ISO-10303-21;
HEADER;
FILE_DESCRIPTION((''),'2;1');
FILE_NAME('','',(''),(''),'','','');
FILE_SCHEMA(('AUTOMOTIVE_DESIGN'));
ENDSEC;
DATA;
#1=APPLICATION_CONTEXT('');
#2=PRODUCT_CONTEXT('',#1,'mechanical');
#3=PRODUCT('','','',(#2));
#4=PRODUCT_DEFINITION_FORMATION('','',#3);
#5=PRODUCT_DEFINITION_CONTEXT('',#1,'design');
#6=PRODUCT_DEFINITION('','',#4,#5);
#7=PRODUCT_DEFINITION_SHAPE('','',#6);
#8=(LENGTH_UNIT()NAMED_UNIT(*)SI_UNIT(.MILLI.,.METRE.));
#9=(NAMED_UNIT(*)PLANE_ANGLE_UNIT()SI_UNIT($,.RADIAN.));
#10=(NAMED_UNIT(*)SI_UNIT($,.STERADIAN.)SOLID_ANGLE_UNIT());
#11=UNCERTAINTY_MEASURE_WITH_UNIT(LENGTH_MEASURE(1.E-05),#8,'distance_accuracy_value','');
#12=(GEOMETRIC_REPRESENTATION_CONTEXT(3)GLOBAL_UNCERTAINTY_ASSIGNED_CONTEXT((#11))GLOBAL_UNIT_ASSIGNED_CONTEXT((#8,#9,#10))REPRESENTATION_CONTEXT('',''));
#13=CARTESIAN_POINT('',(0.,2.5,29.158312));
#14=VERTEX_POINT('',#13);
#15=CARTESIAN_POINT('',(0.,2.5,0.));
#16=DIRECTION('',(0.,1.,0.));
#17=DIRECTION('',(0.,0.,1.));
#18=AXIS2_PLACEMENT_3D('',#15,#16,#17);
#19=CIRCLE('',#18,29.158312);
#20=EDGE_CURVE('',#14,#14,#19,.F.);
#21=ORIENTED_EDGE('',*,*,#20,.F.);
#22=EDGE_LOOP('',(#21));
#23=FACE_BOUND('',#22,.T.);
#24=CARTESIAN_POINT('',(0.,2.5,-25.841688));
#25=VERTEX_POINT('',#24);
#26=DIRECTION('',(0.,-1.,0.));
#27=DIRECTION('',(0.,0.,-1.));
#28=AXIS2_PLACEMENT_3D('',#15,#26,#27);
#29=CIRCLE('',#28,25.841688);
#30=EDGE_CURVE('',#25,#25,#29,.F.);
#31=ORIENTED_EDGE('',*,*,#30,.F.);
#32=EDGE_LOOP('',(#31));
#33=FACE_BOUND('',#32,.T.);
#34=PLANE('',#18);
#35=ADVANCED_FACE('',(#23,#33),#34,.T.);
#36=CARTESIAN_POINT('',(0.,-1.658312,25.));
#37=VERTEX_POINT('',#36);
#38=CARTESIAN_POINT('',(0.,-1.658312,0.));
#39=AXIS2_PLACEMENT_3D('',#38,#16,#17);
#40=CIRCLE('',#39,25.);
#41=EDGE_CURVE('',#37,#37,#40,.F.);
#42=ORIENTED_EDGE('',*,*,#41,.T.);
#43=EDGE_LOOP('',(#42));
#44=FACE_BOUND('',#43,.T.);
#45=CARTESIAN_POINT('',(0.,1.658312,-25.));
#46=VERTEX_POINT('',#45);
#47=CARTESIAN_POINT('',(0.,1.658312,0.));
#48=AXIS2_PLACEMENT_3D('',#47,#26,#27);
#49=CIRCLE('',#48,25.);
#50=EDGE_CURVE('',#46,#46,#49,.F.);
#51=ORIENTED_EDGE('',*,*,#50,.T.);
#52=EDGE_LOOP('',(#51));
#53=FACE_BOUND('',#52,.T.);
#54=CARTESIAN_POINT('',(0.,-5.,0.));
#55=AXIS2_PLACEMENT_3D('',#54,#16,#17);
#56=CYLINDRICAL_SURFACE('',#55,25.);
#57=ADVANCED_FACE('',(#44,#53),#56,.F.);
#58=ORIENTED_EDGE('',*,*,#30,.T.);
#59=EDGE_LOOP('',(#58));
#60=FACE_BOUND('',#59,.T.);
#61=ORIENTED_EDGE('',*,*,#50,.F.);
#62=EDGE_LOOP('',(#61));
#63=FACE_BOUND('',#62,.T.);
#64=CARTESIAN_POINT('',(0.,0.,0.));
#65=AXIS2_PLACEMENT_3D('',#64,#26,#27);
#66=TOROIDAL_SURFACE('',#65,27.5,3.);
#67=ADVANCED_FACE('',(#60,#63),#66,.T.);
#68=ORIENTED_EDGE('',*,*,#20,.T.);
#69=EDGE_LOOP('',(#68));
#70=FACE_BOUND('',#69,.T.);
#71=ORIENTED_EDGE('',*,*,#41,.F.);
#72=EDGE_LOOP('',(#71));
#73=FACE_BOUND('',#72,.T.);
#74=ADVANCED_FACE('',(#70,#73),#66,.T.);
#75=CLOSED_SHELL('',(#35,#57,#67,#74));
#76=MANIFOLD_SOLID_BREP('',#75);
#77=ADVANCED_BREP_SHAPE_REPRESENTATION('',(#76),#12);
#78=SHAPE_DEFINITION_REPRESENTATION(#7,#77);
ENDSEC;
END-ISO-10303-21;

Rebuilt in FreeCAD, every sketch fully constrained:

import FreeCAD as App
import Part
import Sketcher

V = App.Vector

doc = App.newDocument("Part")
body = doc.addObject("PartDesign::Body", "Body")

sketch1 = body.newObject("Sketcher::SketchObject", "Sketch")
sketch1.AttachmentSupport = (doc.getObject("XY_Plane"), [""])
sketch1.MapMode = "FlatFace"
sketch1.addGeometry(Part.Circle(V(27.5, 0, 0), V(0, 0, 1), 3), False)
sketch1.addConstraint([
    Sketcher.Constraint("PointOnObject", 0, 3, -1),
    Sketcher.Constraint("Diameter", 0, 6.0),
    Sketcher.Constraint("DistanceX", -1, 1, 0, 3, 27.5),
])
revolution = body.newObject("PartDesign::Revolution", "Revolution")
revolution.Profile = sketch1
revolution.ReferenceAxis = (sketch1, ["V_Axis"])
revolution.Angle = 360

sketch2 = body.newObject("Sketcher::SketchObject", "Sketch001")
sketch2.AttachmentSupport = (doc.getObject("XZ_Plane"), [""])
sketch2.MapMode = "FlatFace"
sketch2.addGeometry(Part.Circle(V(0, 0, 0), V(0, 0, 1), 25), False)
sketch2.addConstraint([
    Sketcher.Constraint("Coincident", 0, 3, -1, 1),
    Sketcher.Constraint("Diameter", 0, 50.0),
])
pocket1 = body.newObject("PartDesign::Pocket", "Pocket")
pocket1.Profile = sketch2
pocket1.Length = 10
pocket1.Midplane = True

sketch3 = body.newObject("Sketcher::SketchObject", "Sketch002")
sketch3.AttachmentSupport = (doc.getObject("XZ_Plane"), [""])
sketch3.MapMode = "FlatFace"
sketch3.AttachmentOffset = App.Placement(V(0, 0, -2.5), App.Rotation())
sketch3.addGeometry(Part.Circle(V(0, 0, 0), V(0, 0, 1), 35), False)
sketch3.addConstraint([
    Sketcher.Constraint("Coincident", 0, 3, -1, 1),
    Sketcher.Constraint("Diameter", 0, 70.0),
])
pocket2 = body.newObject("PartDesign::Pocket", "Pocket001")
pocket2.Profile = sketch3
pocket2.Length = 10

doc.recompute()
